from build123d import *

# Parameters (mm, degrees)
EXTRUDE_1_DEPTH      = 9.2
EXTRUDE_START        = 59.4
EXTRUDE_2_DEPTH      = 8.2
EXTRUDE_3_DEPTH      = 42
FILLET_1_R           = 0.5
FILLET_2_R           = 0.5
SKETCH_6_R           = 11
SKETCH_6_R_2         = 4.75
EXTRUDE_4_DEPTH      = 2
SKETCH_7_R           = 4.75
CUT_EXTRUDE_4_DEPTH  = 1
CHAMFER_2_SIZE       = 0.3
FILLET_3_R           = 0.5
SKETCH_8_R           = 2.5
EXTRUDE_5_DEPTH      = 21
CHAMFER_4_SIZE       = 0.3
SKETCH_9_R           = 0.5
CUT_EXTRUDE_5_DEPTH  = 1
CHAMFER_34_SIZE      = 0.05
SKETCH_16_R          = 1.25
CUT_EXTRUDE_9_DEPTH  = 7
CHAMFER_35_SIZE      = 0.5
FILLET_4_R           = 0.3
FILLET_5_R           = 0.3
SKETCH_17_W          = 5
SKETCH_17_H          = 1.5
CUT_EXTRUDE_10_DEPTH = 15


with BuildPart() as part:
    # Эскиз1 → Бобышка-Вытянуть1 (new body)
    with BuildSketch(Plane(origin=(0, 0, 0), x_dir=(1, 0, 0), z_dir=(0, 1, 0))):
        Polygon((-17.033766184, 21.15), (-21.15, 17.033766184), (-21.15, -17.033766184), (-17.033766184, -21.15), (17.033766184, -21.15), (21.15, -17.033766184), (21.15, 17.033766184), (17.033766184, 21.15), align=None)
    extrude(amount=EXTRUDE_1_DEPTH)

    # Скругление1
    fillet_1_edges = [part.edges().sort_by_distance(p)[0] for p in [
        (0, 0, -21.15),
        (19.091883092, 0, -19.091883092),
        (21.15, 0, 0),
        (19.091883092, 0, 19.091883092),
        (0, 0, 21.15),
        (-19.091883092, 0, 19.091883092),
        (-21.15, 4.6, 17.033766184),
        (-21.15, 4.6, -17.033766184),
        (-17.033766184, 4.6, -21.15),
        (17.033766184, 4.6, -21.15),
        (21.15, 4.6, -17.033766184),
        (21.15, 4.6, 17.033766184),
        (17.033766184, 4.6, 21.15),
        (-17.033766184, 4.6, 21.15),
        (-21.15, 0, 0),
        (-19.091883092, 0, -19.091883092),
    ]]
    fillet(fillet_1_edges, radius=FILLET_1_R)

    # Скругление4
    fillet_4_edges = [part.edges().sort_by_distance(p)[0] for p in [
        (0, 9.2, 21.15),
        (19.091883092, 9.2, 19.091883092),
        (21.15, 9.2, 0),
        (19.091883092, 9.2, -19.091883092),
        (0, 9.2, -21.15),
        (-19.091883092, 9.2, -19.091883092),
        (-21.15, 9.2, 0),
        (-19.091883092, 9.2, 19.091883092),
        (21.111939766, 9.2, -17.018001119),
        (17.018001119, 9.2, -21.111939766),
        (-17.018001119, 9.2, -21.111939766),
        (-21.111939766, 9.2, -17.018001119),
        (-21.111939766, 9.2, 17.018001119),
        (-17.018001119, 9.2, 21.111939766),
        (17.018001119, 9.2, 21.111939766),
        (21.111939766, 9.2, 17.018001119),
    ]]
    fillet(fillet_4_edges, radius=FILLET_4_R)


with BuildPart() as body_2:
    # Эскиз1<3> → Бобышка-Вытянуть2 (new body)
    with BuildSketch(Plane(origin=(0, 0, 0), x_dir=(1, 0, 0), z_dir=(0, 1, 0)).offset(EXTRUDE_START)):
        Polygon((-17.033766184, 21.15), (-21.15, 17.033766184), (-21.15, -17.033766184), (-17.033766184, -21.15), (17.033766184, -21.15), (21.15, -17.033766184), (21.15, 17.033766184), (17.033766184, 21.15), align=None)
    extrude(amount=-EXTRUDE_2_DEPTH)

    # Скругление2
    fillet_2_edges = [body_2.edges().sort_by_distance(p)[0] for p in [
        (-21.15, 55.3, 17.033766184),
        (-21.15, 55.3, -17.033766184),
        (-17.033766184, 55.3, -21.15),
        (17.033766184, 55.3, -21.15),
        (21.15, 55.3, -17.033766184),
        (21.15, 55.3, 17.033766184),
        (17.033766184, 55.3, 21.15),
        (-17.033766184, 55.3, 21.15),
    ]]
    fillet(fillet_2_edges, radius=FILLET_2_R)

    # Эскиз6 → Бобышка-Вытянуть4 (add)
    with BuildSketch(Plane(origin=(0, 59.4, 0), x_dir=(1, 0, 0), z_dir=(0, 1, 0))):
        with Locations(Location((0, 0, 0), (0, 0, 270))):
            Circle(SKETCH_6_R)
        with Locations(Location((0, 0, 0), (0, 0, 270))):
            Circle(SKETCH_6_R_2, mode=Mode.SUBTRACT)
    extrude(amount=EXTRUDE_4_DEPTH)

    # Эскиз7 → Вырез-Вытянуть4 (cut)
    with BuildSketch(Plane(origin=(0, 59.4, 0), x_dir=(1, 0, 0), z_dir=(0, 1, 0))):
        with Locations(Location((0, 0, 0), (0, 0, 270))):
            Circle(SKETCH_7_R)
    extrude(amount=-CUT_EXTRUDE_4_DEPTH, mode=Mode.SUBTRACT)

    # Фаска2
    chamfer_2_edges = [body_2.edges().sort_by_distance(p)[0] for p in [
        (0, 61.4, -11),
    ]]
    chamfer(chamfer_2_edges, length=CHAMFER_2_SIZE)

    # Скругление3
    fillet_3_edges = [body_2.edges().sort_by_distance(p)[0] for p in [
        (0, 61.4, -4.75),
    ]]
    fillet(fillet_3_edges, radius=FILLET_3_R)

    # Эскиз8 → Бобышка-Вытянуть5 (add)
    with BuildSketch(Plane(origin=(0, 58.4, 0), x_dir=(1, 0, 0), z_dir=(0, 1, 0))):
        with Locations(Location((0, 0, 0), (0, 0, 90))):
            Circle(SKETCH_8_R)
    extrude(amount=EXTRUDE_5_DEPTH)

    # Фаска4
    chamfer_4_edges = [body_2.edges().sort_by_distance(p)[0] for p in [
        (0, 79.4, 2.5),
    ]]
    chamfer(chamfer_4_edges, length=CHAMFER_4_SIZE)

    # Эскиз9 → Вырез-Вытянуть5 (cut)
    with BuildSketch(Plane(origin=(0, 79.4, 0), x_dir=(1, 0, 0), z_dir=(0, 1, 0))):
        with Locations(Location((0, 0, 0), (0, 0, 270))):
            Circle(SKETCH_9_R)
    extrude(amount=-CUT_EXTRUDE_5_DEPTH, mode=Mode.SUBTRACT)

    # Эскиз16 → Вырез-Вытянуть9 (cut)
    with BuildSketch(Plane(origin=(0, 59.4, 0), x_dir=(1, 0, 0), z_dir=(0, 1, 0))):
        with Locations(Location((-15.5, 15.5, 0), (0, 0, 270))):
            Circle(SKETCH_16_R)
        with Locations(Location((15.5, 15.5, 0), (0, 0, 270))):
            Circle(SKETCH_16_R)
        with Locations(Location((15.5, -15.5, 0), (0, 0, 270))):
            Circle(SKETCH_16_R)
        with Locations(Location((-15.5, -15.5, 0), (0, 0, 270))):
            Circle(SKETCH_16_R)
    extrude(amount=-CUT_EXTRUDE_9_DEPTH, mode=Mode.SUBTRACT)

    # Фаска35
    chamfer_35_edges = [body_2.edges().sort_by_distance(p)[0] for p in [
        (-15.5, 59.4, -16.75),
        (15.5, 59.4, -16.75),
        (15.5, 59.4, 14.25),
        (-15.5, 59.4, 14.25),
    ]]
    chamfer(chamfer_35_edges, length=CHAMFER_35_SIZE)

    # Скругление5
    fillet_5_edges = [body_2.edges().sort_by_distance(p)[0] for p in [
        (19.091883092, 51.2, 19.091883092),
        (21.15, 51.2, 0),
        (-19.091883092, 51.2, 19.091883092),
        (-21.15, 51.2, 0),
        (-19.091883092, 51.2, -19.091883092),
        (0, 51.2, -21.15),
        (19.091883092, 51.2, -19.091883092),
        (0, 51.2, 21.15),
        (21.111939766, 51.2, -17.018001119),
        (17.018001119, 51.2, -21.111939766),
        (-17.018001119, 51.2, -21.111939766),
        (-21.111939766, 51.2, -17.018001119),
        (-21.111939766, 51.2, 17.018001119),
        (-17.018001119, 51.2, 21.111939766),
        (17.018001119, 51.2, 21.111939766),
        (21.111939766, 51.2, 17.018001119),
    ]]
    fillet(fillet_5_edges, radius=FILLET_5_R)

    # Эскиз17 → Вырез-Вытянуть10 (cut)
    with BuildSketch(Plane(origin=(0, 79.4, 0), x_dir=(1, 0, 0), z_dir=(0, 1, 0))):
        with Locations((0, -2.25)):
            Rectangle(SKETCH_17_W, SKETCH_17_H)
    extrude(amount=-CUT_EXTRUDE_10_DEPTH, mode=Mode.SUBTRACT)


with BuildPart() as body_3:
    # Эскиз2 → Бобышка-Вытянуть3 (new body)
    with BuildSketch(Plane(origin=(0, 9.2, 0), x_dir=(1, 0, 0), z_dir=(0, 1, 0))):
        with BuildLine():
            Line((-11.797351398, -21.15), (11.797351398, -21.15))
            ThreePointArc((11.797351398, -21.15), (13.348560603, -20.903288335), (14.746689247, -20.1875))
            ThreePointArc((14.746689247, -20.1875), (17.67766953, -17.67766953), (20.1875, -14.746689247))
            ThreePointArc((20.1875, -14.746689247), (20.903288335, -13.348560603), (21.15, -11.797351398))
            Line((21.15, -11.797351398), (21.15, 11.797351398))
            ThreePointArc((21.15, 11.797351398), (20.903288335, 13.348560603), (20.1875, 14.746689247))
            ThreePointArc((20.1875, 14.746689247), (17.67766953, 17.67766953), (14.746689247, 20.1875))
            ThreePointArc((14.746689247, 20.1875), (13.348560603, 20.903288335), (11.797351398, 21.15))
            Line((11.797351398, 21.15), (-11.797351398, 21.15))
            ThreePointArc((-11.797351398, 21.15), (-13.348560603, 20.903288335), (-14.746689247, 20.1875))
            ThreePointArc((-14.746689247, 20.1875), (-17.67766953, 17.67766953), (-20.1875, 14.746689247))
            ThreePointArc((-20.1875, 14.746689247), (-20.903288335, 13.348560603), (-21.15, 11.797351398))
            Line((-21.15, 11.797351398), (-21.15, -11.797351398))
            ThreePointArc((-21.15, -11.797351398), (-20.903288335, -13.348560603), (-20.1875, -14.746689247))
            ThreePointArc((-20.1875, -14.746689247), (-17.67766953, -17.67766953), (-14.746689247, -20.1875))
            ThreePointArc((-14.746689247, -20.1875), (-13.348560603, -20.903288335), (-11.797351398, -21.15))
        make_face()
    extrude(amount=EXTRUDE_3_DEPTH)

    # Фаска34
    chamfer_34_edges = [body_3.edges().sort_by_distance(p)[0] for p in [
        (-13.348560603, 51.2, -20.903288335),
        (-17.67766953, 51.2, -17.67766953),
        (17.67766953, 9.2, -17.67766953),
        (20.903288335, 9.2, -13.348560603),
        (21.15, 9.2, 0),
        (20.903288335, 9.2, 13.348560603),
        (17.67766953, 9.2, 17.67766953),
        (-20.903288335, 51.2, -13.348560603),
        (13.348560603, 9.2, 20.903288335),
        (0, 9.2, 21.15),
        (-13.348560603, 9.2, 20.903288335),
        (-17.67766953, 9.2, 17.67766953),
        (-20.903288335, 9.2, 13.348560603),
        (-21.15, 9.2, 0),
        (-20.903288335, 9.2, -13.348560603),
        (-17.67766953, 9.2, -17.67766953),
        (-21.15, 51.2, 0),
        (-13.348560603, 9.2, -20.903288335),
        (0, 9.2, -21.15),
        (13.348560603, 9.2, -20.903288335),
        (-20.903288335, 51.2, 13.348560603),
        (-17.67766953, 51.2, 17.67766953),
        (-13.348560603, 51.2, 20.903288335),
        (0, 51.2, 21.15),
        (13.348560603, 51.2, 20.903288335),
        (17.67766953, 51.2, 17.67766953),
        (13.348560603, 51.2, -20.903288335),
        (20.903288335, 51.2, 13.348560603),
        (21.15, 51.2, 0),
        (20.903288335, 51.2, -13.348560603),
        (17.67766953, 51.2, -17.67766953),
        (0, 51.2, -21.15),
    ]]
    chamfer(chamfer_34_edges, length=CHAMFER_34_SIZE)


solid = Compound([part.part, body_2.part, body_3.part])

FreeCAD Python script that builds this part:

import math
import FreeCAD as App
import Part
import Sketcher

V = App.Vector
Q = App.Units.Quantity


def edges_at(feature, points):
    """Names of the edges that pass closest to the given points."""
    edges = feature.Shape.Edges
    near = lambda p: min(range(len(edges)), key=lambda i: edges[i].distToShape(Part.Vertex(*p))[0])
    return sorted({f"Edge{near(p) + 1}" for p in points})


def add_polygon(sketch, points):
    """Adds a closed chain of lines whose ends are joined by coincident constraints."""
    first, n = sketch.GeometryCount, len(points)
    for a, b in zip(points, points[1:] + points[:1]):
        sketch.addGeometry(Part.LineSegment(App.Vector(*a, 0), App.Vector(*b, 0)), False)
    for i in range(n):
        sketch.addConstraint(Sketcher.Constraint("Coincident", first + i, 2, first + (i + 1) % n, 1))

doc = App.newDocument("Part")
params = doc.addObject("Spreadsheet::Sheet", "Params")
for row, (alias, value) in enumerate([
    ("pad1_length", "9.2 mm"),
    ("fillet_radius", "0.5 mm"),
    ("fillet2_radius", "0.3 mm"),
    ("pad2_length", "8.2 mm"),
    ("fillet3_radius", "0.5 mm"),
    ("sketch3_diameter", "22 mm"),
    ("sketch3_diameter2", "9.5 mm"),
    ("pad3_length", "2 mm"),
    ("sketch4_diameter", "9.5 mm"),
    ("pocket1_length", "1 mm"),
    ("chamfer_size", "0.3 mm"),
    ("fillet4_radius", "0.5 mm"),
    ("sketch5_diameter", "5 mm"),
    ("pad4_length", "21 mm"),
    ("chamfer2_size", "0.3 mm"),
    ("sketch6_diameter", "1 mm"),
    ("pocket2_length", "1 mm"),
    ("sketch7_diameter", "2.5 mm"),
    ("pocket3_length", "7 mm"),
    ("chamfer3_size", "0.5 mm"),
    ("fillet5_radius", "0.3 mm"),
    ("sketch8_width", "5 mm"),
    ("sketch8_height", "1.5 mm"),
    ("pocket4_length", "15 mm"),
    ("sketch9_radius", "5 mm"),
    ("sketch9_radius2", "25 mm"),
    ("pad5_length", "42 mm"),
    ("chamfer4_size", "0.05 mm"),
], start=1):
    params.set(f"A{row}", alias)
    params.set(f"B{row}", "=" + value)
    params.setAlias(f"B{row}", alias)

body = doc.addObject("PartDesign::Body", "Body")

sketch1 = body.newObject("Sketcher::SketchObject", "Sketch")
sketch1.AttachmentSupport = (doc.getObject("XZ_Plane"), [""])
sketch1.MapMode = "FlatFace"
add_polygon(sketch1, [(-17.033766, -21.15), (-21.15, -17.033766), (-21.15, 17.033766), (-17.033766, 21.15), (17.033766, 21.15), (21.15, 17.033766), (21.15, -17.033766), (17.033766, -21.15)])
sketch1.addConstraint([
    Sketcher.Constraint("Vertical", 1),
    Sketcher.Constraint("Horizontal", 3),
    Sketcher.Constraint("Vertical", 5),
    Sketcher.Constraint("Horizontal", 7),
    Sketcher.Constraint("Symmetric", 0, 2, 4, 2, -1, 1),
    Sketcher.Constraint("Symmetric", 2, 2, 6, 2, -1, 1),
    Sketcher.Constraint("Perpendicular", 0, 2),
    Sketcher.Constraint("Perpendicular", 2, 4),
    Sketcher.Constraint("Perpendicular", 4, 6),
    Sketcher.Constraint("Horizontal", 1, 2, 4, 2),
    Sketcher.Constraint("Vertical", 3, 2, 6, 2),
    Sketcher.Constraint("Equal", 7, 1),
    Sketcher.Constraint("DistanceX", 1, 2, 4, 2, Q("42.3 mm")),
    Sketcher.Constraint("DistanceX", 3, 1, 3, 2, Q("34.067532 mm")),
])
pad1 = body.newObject("PartDesign::Pad", "Pad")
pad1.Profile = sketch1
pad1.setExpression("Length", "Params.pad1_length")
pad1.Reversed = True
doc.recompute()

fillet = body.newObject("PartDesign::Fillet", "Fillet")
fillet.Base = (pad1, edges_at(pad1, [
    (0, 0, -21.15),
    (19.092, 0, -19.092),
    (21.15, 0, 0),
    (19.092, 0, 19.092),
    (0, 0, 21.15),
    (-19.092, 0, 19.092),
    (-21.15, 4.6, 17.034),
    (-21.15, 4.6, -17.034),
    (-17.034, 4.6, -21.15),
    (17.034, 4.6, -21.15),
    (21.15, 4.6, -17.034),
    (21.15, 4.6, 17.034),
    (17.034, 4.6, 21.15),
    (-17.034, 4.6, 21.15),
    (-21.15, 0, 0),
    (-19.092, 0, -19.092),
]))
fillet.setExpression("Radius", "Params.fillet_radius")
doc.recompute()

fillet2 = body.newObject("PartDesign::Fillet", "Fillet001")
fillet2.Base = (fillet, edges_at(fillet, [
    (0, 9.2, 21.15),
    (19.092, 9.2, 19.092),
    (21.15, 9.2, 0),
    (19.092, 9.2, -19.092),
    (0, 9.2, -21.15),
    (-19.092, 9.2, -19.092),
    (-21.15, 9.2, 0),
    (-19.092, 9.2, 19.092),
    (21.112, 9.2, -17.018),
    (17.018, 9.2, -21.112),
    (-17.018, 9.2, -21.112),
    (-21.112, 9.2, -17.018),
    (-21.112, 9.2, 17.018),
    (-17.018, 9.2, 21.112),
    (17.018, 9.2, 21.112),
    (21.112, 9.2, 17.018),
]))
fillet2.setExpression("Radius", "Params.fillet2_radius")
body2 = doc.addObject("PartDesign::Body", "Body001")

sketch2 = body2.newObject("Sketcher::SketchObject", "Sketch001")
sketch2.AttachmentSupport = (doc.getObject("XZ_Plane001"), [""])
sketch2.MapMode = "FlatFace"
sketch2.AttachmentOffset = App.Placement(V(0, 0, -59.4), App.Rotation())
add_polygon(sketch2, [(-17.033766, -21.15), (-21.15, -17.033766), (-21.15, 17.033766), (-17.033766, 21.15), (17.033766, 21.15), (21.15, 17.033766), (21.15, -17.033766), (17.033766, -21.15)])
sketch2.addConstraint([
    Sketcher.Constraint("Vertical", 1),
    Sketcher.Constraint("Horizontal", 3),
    Sketcher.Constraint("Vertical", 5),
    Sketcher.Constraint("Horizontal", 7),
    Sketcher.Constraint("Symmetric", 0, 2, 4, 2, -1, 1),
    Sketcher.Constraint("Symmetric", 2, 2, 6, 2, -1, 1),
    Sketcher.Constraint("Perpendicular", 0, 2),
    Sketcher.Constraint("Perpendicular", 2, 4),
    Sketcher.Constraint("Perpendicular", 4, 6),
    Sketcher.Constraint("Horizontal", 1, 2, 4, 2),
    Sketcher.Constraint("Vertical", 3, 2, 6, 2),
    Sketcher.Constraint("Equal", 7, 1),
    Sketcher.Constraint("DistanceX", 1, 2, 4, 2, Q("42.3 mm")),
    Sketcher.Constraint("DistanceX", 3, 1, 3, 2, Q("34.067532 mm")),
])
pad2 = body2.newObject("PartDesign::Pad", "Pad001")
pad2.Profile = sketch2
pad2.setExpression("Length", "Params.pad2_length")
doc.recompute()

fillet3 = body2.newObject("PartDesign::Fillet", "Fillet002")
fillet3.Base = (pad2, edges_at(pad2, [
    (-21.15, 55.3, 17.034),
    (-21.15, 55.3, -17.034),
    (-17.034, 55.3, -21.15),
    (17.034, 55.3, -21.15),
    (21.15, 55.3, -17.034),
    (21.15, 55.3, 17.034),
    (17.034, 55.3, 21.15),
    (-17.034, 55.3, 21.15),
]))
fillet3.setExpression("Radius", "Params.fillet3_radius")

sketch3 = body2.newObject("Sketcher::SketchObject", "Sketch002")
sketch3.AttachmentSupport = (doc.getObject("XZ_Plane001"), [""])
sketch3.MapMode = "FlatFace"
sketch3.AttachmentOffset = App.Placement(V(0, 0, -59.4), App.Rotation())
sketch3.addGeometry([
    Part.Circle(V(0, 0, 0), V(0, 0, 1), 11),
    Part.Circle(V(0, 0, 0), V(0, 0, 1), 4.75),
], False)
sketch3.addConstraint([
    Sketcher.Constraint("Coincident", 0, 3, -1, 1),
    Sketcher.Constraint("Coincident", 1, 3, -1, 1),
    Sketcher.Constraint("Diameter", 0, Q("22 mm")),
    Sketcher.Constraint("Diameter", 1, Q("9.5 mm")),
])
sketch3.setExpression("Constraints[2]", "Params.sketch3_diameter")
sketch3.setExpression("Constraints[3]", "Params.sketch3_diameter2")
pad3 = body2.newObject("PartDesign::Pad", "Pad002")
pad3.Profile = sketch3
pad3.setExpression("Length", "Params.pad3_length")
pad3.Reversed = True

sketch4 = body2.newObject("Sketcher::SketchObject", "Sketch003")
sketch4.AttachmentSupport = (doc.getObject("XZ_Plane001"), [""])
sketch4.MapMode = "FlatFace"
sketch4.AttachmentOffset = App.Placement(V(0, 0, -59.4), App.Rotation())
sketch4.addGeometry(Part.Circle(V(0, 0, 0), V(0, 0, 1), 4.75), False)
sketch4.addConstraint([
    Sketcher.Constraint("Coincident", 0, 3, -1, 1),
    Sketcher.Constraint("Diameter", 0, Q("9.5 mm")),
])
sketch4.setExpression("Constraints[1]", "Params.sketch4_diameter")
pocket1 = body2.newObject("PartDesign::Pocket", "Pocket")
pocket1.Profile = sketch4
pocket1.setExpression("Length", "Params.pocket1_length")
pocket1.Reversed = True
doc.recompute()

chamfer = body2.newObject("PartDesign::Chamfer", "Chamfer")
chamfer.Base = (pocket1, edges_at(pocket1, [(0, 61.4, -11)]))
chamfer.setExpression("Size", "Params.chamfer_size")
doc.recompute()

fillet4 = body2.newObject("PartDesign::Fillet", "Fillet003")
fillet4.Base = (chamfer, edges_at(chamfer, [(0, 61.4, -4.75)]))
fillet4.setExpression("Radius", "Params.fillet4_radius")

sketch5 = body2.newObject("Sketcher::SketchObject", "Sketch004")
sketch5.AttachmentSupport = (doc.getObject("XZ_Plane001"), [""])
sketch5.MapMode = "FlatFace"
sketch5.AttachmentOffset = App.Placement(V(0, 0, -58.4), App.Rotation())
sketch5.addGeometry(Part.Circle(V(0, 0, 0), V(0, 0, 1), 2.5), False)
sketch5.addConstraint([
    Sketcher.Constraint("Coincident", 0, 3, -1, 1),
    Sketcher.Constraint("Diameter", 0, Q("5 mm")),
])
sketch5.setExpression("Constraints[1]", "Params.sketch5_diameter")
pad4 = body2.newObject("PartDesign::Pad", "Pad003")
pad4.Profile = sketch5
pad4.setExpression("Length", "Params.pad4_length")
pad4.Reversed = True
doc.recompute()

chamfer2 = body2.newObject("PartDesign::Chamfer", "Chamfer001")
chamfer2.Base = (pad4, edges_at(pad4, [(0, 79.4, 2.5)]))
chamfer2.setExpression("Size", "Params.chamfer2_size")

sketch6 = body2.newObject("Sketcher::SketchObject", "Sketch005")
sketch6.AttachmentSupport = (doc.getObject("XZ_Plane001"), [""])
sketch6.MapMode = "FlatFace"
sketch6.AttachmentOffset = App.Placement(V(0, 0, -79.4), App.Rotation())
sketch6.addGeometry(Part.Circle(V(0, 0, 0), V(0, 0, 1), 0.5), False)
sketch6.addConstraint([
    Sketcher.Constraint("Coincident", 0, 3, -1, 1),
    Sketcher.Constraint("Diameter", 0, Q("1 mm")),
])
sketch6.setExpression("Constraints[1]", "Params.sketch6_diameter")
pocket2 = body2.newObject("PartDesign::Pocket", "Pocket001")
pocket2.Profile = sketch6
pocket2.setExpression("Length", "Params.pocket2_length")
pocket2.Reversed = True

sketch7 = body2.newObject("Sketcher::SketchObject", "Sketch006")
sketch7.AttachmentSupport = (doc.getObject("XZ_Plane001"), [""])
sketch7.MapMode = "FlatFace"
sketch7.AttachmentOffset = App.Placement(V(0, 0, -59.4), App.Rotation())
sketch7.addGeometry([
    Part.Circle(V(-15.5, -15.5, 0), V(0, 0, 1), 1.25),
    Part.Circle(V(15.5, -15.5, 0), V(0, 0, 1), 1.25),
    Part.Circle(V(15.5, 15.5, 0), V(0, 0, 1), 1.25),
    Part.Circle(V(-15.5, 15.5, 0), V(0, 0, 1), 1.25),
], False)
sketch7.addConstraint([
    Sketcher.Constraint("Equal", 0, 1),
    Sketcher.Constraint("Equal", 1, 2),
    Sketcher.Constraint("Equal", 2, 3),
    Sketcher.Constraint("Symmetric", 0, 3, 2, 3, -1, 1),
    Sketcher.Constraint("Symmetric", 1, 3, 3, 3, -1, 1),
    Sketcher.Constraint("Symmetric", 0, 3, 1, 3, -2),
    Sketcher.Constraint("Diameter", 0, Q("2.5 mm")),
    Sketcher.Constraint("DistanceX", 0, 3, 1, 3, Q("31 mm")),
    Sketcher.Constraint("DistanceY", 1, 3, 2, 3, Q("31 mm")),
])
sketch7.setExpression("Constraints[6]", "Params.sketch7_diameter")
pocket3 = body2.newObject("PartDesign::Pocket", "Pocket002")
pocket3.Profile = sketch7
pocket3.setExpression("Length", "Params.pocket3_length")
pocket3.Reversed = True
doc.recompute()

chamfer3 = body2.newObject("PartDesign::Chamfer", "Chamfer002")
chamfer3.Base = (pocket3, edges_at(pocket3, [
    (-15.5, 59.4, -16.75),
    (15.5, 59.4, -16.75),
    (15.5, 59.4, 14.25),
    (-15.5, 59.4, 14.25),
]))
chamfer3.setExpression("Size", "Params.chamfer3_size")
doc.recompute()

fillet5 = body2.newObject("PartDesign::Fillet", "Fillet004")
fillet5.Base = (chamfer3, edges_at(chamfer3, [
    (19.092, 51.2, 19.092),
    (21.15, 51.2, 0),
    (-19.092, 51.2, 19.092),
    (-21.15, 51.2, 0),
    (-19.092, 51.2, -19.092),
    (0, 51.2, -21.15),
    (19.092, 51.2, -19.092),
    (0, 51.2, 21.15),
    (21.112, 51.2, -17.018),
    (17.018, 51.2, -21.112),
    (-17.018, 51.2, -21.112),
    (-21.112, 51.2, -17.018),
    (-21.112, 51.2, 17.018),
    (-17.018, 51.2, 21.112),
    (17.018, 51.2, 21.112),
    (21.112, 51.2, 17.018),
]))
fillet5.setExpression("Radius", "Params.fillet5_radius")

sketch8 = body2.newObject("Sketcher::SketchObject", "Sketch007")
sketch8.AttachmentSupport = (doc.getObject("XZ_Plane001"), [""])
sketch8.MapMode = "FlatFace"
sketch8.AttachmentOffset = App.Placement(V(0, 0, -79.4), App.Rotation())
add_polygon(sketch8, [(-2.5, 1.5), (-2.5, 3), (2.5, 3), (2.5, 1.5)])
sketch8.addConstraint([
    Sketcher.Constraint("Vertical", 0),
    Sketcher.Constraint("Horizontal", 1),
    Sketcher.Constraint("Vertical", 2),
    Sketcher.Constraint("Horizontal", 3),
    Sketcher.Constraint("DistanceX", 1, 1, 1, 2, Q("5 mm")),
    Sketcher.Constraint("DistanceY", 0, 1, 0, 2, Q("1.5 mm")),
    Sketcher.Constraint("DistanceY", -1, 1, 0, 2, Q("3 mm")),
    Sketcher.Constraint("DistanceX", 0, 2, -1, 1, Q("2.5 mm")),
])
sketch8.setExpression("Constraints[8]", "Params.sketch8_width")
sketch8.setExpression("Constraints[9]", "Params.sketch8_height")
pocket4 = body2.newObject("PartDesign::Pocket", "Pocket003")
pocket4.Profile = sketch8
pocket4.setExpression("Length", "Params.pocket4_length")
pocket4.Reversed = True
body3 = doc.addObject("PartDesign::Body", "Body002")

sketch9 = body3.newObject("Sketcher::SketchObject", "Sketch008")
sketch9.AttachmentSupport = (doc.getObject("XZ_Plane002"), [""])
sketch9.MapMode = "FlatFace"
sketch9.AttachmentOffset = App.Placement(V(0, 0, -9.2), App.Rotation())
sketch9.addGeometry([
    Part.LineSegment(V(-11.797351, 21.15, 0), V(11.797351, 21.15, 0)),
    Part.ArcOfCircle(Part.Circle(V(11.797351, 16.15, 0), V(0, 0, 1), 5), math.radians(53.852389), math.radians(90)),
    Part.ArcOfCircle(Part.Circle(V(0, 0, 0), V(0, 0, 1), 25), math.radians(36.147611), math.radians(53.852389)),
    Part.ArcOfCircle(Part.Circle(V(16.15, 11.797351, 0), V(0, 0, 1), 5), math.radians(0), math.radians(36.147611)),
    Part.LineSegment(V(21.15, 11.797351, 0), V(21.15, -11.797351, 0)),
    Part.ArcOfCircle(Part.Circle(V(16.15, -11.797351, 0), V(0, 0, 1), 5), math.radians(-36.147611), math.radians(0)),
    Part.ArcOfCircle(Part.Circle(V(0, 0, 0), V(0, 0, 1), 25), math.radians(-53.852389), math.radians(-36.147611)),
    Part.ArcOfCircle(Part.Circle(V(11.797351, -16.15, 0), V(0, 0, 1), 5), math.radians(-90), math.radians(-53.852389)),
    Part.LineSegment(V(11.797351, -21.15, 0), V(-11.797351, -21.15, 0)),
    Part.ArcOfCircle(Part.Circle(V(-11.797351, -16.15, 0), V(0, 0, 1), 5), math.radians(-126.147611), math.radians(-90)),
    Part.ArcOfCircle(Part.Circle(V(0, 0, 0), V(0, 0, 1), 25), math.radians(-143.852389), math.radians(-126.147611)),
    Part.ArcOfCircle(Part.Circle(V(-16.15, -11.797351, 0), V(0, 0, 1), 5), math.radians(-180), math.radians(-143.852389)),
    Part.LineSegment(V(-21.15, -11.797351, 0), V(-21.15, 11.797351, 0)),
    Part.ArcOfCircle(Part.Circle(V(-16.15, 11.797351, 0), V(0, 0, 1), 5), math.radians(143.852389), math.radians(180)),
    Part.ArcOfCircle(Part.Circle(V(0, 0, 0), V(0, 0, 1), 25), math.radians(126.147611), math.radians(143.852389)),
    Part.ArcOfCircle(Part.Circle(V(-11.797351, 16.15, 0), V(0, 0, 1), 5), math.radians(90), math.radians(126.147611)),
], False)
sketch9.addConstraint([
    Sketcher.Constraint("Tangent", 0, 2, 1, 2),
    Sketcher.Constraint("Tangent", 1, 1, 2, 2),
    Sketcher.Constraint("Tangent", 2, 1, 3, 2),
    Sketcher.Constraint("Tangent", 3, 1, 4, 1),
    Sketcher.Constraint("Tangent", 4, 2, 5, 2),
    Sketcher.Constraint("Tangent", 5, 1, 6, 2),
    Sketcher.Constraint("Tangent", 6, 1, 7, 2),
    Sketcher.Constraint("Tangent", 7, 1, 8, 1),
    Sketcher.Constraint("Tangent", 8, 2, 9, 2),
    Sketcher.Constraint("Tangent", 9, 1, 10, 2),
    Sketcher.Constraint("Tangent", 10, 1, 11, 2),
    Sketcher.Constraint("Tangent", 11, 1, 12, 1),
    Sketcher.Constraint("Tangent", 12, 2, 13, 2),
    Sketcher.Constraint("Tangent", 13, 1, 14, 2),
    Sketcher.Constraint("Tangent", 14, 1, 15, 2),
    Sketcher.Constraint("Tangent", 15, 1, 0, 1),
    Sketcher.Constraint("Horizontal", 0),
    Sketcher.Constraint("Vertical", 4),
    Sketcher.Constraint("Horizontal", 8),
    Sketcher.Constraint("Vertical", 12),
    Sketcher.Constraint("Coincident", 2, 3, -1, 1),
    Sketcher.Constraint("Coincident", 6, 3, -1, 1),
    Sketcher.Constraint("Coincident", 10, 3, -1, 1),
    Sketcher.Constraint("Coincident", 14, 3, -1, 1),
    Sketcher.Constraint("Equal", 1, 3),
    Sketcher.Constraint("Equal", 3, 5),
    Sketcher.Constraint("Equal", 2, 6),
    Sketcher.Constraint("Equal", 5, 7),
    Sketcher.Constraint("Equal", 7, 9),
    Sketcher.Constraint("Equal", 6, 10),
    Sketcher.Constraint("Equal", 9, 11),
    Sketcher.Constraint("Equal", 11, 13),
    Sketcher.Constraint("Equal", 10, 14),
    Sketcher.Constraint("Equal", 13, 15),
    Sketcher.Constraint("Horizontal", 5, 3, 11, 3),
    Sketcher.Constraint("Vertical", 1, 3, 7, 3),
    Sketcher.Constraint("Equal", 8, 4),
    Sketcher.Constraint("Radius", 1, Q("5 mm")),
    Sketcher.Constraint("Radius", 2, Q("25 mm")),
    Sketcher.Constraint("DistanceY", 7, 3, 1, 3, Q("32.3 mm")),
])
sketch9.setExpression("Constraints[37]", "Params.sketch9_radius")
sketch9.setExpression("Constraints[38]", "Params.sketch9_radius2")
pad5 = body3.newObject("PartDesign::Pad", "Pad004")
pad5.Profile = sketch9
pad5.setExpression("Length", "Params.pad5_length")
pad5.Reversed = True
doc.recompute()

chamfer4 = body3.newObject("PartDesign::Chamfer", "Chamfer003")
chamfer4.Base = (pad5, edges_at(pad5, [
    (-13.349, 51.2, -20.903),
    (-17.678, 51.2, -17.678),
    (17.678, 9.2, -17.678),
    (20.903, 9.2, -13.349),
    (21.15, 9.2, 0),
    (20.903, 9.2, 13.349),
    (17.678, 9.2, 17.678),
    (-20.903, 51.2, -13.349),
    (13.349, 9.2, 20.903),
    (0, 9.2, 21.15),
    (-13.349, 9.2, 20.903),
    (-17.678, 9.2, 17.678),
    (-20.903, 9.2, 13.349),
    (-21.15, 9.2, 0),
    (-20.903, 9.2, -13.349),
    (-17.678, 9.2, -17.678),
    (-21.15, 51.2, 0),
    (-13.349, 9.2, -20.903),
    (0, 9.2, -21.15),
    (13.349, 9.2, -20.903),
    (-20.903, 51.2, 13.349),
    (-17.678, 51.2, 17.678),
    (-13.349, 51.2, 20.903),
    (0, 51.2, 21.15),
    (13.349, 51.2, 20.903),
    (17.678, 51.2, 17.678),
    (13.349, 51.2, -20.903),
    (20.903, 51.2, 13.349),
    (21.15, 51.2, 0),
    (20.903, 51.2, -13.349),
    (17.678, 51.2, -17.678),
    (0, 51.2, -21.15),
]))
chamfer4.setExpression("Size", "Params.chamfer4_size")

doc.recompute()
